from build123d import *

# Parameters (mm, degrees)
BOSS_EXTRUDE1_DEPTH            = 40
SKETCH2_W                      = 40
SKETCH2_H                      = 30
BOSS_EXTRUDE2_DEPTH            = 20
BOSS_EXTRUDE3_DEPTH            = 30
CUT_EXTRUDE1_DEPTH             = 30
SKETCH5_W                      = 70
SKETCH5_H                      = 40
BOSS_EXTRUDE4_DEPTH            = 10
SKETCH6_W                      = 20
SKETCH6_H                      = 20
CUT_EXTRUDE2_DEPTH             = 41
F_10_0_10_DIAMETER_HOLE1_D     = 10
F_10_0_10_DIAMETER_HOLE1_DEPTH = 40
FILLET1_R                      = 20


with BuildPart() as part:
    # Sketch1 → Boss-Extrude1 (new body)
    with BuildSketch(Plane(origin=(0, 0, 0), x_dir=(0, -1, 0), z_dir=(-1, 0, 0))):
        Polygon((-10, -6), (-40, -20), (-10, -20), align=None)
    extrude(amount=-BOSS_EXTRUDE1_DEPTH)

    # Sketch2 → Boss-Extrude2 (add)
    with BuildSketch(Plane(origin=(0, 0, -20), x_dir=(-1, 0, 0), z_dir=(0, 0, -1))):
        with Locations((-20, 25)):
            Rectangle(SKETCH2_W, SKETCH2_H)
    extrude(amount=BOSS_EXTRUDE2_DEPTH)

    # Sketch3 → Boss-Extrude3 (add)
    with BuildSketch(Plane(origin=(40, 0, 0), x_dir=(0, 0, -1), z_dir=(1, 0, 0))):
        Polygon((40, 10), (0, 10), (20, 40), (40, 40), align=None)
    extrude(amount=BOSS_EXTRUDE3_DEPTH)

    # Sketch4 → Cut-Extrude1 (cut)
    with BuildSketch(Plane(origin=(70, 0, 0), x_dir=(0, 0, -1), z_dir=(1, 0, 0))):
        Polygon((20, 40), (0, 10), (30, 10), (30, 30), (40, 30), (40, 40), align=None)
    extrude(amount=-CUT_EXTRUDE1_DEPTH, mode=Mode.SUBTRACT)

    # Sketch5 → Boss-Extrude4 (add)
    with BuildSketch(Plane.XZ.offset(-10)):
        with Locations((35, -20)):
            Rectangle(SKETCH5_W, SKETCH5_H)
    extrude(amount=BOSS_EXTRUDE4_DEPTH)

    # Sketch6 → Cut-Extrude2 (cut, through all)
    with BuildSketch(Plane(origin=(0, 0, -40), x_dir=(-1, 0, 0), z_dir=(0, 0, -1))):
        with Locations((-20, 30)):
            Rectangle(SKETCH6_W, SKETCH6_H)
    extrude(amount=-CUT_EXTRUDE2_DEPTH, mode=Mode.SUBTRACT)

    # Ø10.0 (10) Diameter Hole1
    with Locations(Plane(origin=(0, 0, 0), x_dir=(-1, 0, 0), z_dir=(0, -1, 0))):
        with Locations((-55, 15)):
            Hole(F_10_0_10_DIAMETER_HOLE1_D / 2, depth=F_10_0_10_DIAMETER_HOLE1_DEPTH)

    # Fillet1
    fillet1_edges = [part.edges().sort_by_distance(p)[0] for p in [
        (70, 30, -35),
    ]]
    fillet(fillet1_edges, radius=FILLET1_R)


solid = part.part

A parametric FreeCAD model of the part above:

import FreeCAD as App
import Part
import Sketcher
from FreeCAD import Vector
Q = App.Units.Quantity


def edges_at(feature, points):
    """Names of the edges that pass closest to the given points."""
    edges = feature.Shape.Edges
    near = lambda p: min(range(len(edges)), key=lambda i: edges[i].distToShape(Part.Vertex(*p))[0])
    return sorted({f"Edge{near(p) + 1}" for p in points})

doc = App.newDocument("Part")
body = doc.addObject("PartDesign::Body", "Body")

sketch1 = body.newObject("Sketcher::SketchObject", "Sketch")
sketch1.AttachmentSupport = (doc.getObject("YZ_Plane"), [""])
sketch1.MapMode = "FlatFace"
sketch1.addGeometry([
    Part.LineSegment(Vector(10, -6, 0), Vector(40, -20, 0)),
    Part.LineSegment(Vector(40, -20, 0), Vector(10, -20, 0)),
    Part.LineSegment(Vector(10, -20, 0), Vector(10, -6, 0)),
], False)
sketch1.addConstraint([
    Sketcher.Constraint("Coincident", 0, 2, 1, 1),
    Sketcher.Constraint("Coincident", 1, 2, 2, 1),
    Sketcher.Constraint("Coincident", 2, 2, 0, 1),
    Sketcher.Constraint("Horizontal", 1),
    Sketcher.Constraint("Vertical", 2),
    Sketcher.Constraint("DistanceX", 1, 2, 1, 1, Q("30 mm")),
    Sketcher.Constraint("DistanceY", 2, 1, 2, 2, Q("14 mm")),
    Sketcher.Constraint("DistanceX", -1, 1, 0, 2, Q("40 mm")),
    Sketcher.Constraint("DistanceY", 0, 2, -1, 1, Q("20 mm")),
])
pad1 = body.newObject("PartDesign::Pad", "Pad")
pad1.Profile = sketch1
pad1.Length = 40

sketch2 = body.newObject("Sketcher::SketchObject", "Sketch001")
sketch2.AttachmentSupport = (doc.getObject("XY_Plane"), [""])
sketch2.MapMode = "FlatFace"
sketch2.AttachmentOffset = App.Placement(Vector(0, 0, -20), App.Rotation())
sketch2.addGeometry([
    Part.LineSegment(Vector(40, 40, 0), Vector(40, 10, 0)),
    Part.LineSegment(Vector(40, 10, 0), Vector(0, 10, 0)),
    Part.LineSegment(Vector(0, 10, 0), Vector(0, 40, 0)),
    Part.LineSegment(Vector(0, 40, 0), Vector(40, 40, 0)),
], False)
sketch2.addConstraint([
    Sketcher.Constraint("Coincident", 0, 2, 1, 1),
    Sketcher.Constraint("Coincident", 1, 2, 2, 1),
    Sketcher.Constraint("Coincident", 2, 2, 3, 1),
    Sketcher.Constraint("Coincident", 3, 2, 0, 1),
    Sketcher.Constraint("Vertical", 0),
    Sketcher.Constraint("Horizontal", 1),
    Sketcher.Constraint("Vertical", 2),
    Sketcher.Constraint("Horizontal", 3),
    Sketcher.Constraint("PointOnObject", 1, 2, -2),
    Sketcher.Constraint("DistanceX", 1, 2, 1, 1, Q("40 mm")),
    Sketcher.Constraint("DistanceY", 0, 2, 0, 1, Q("30 mm")),
    Sketcher.Constraint("DistanceY", -1, 1, 0, 2, Q("10 mm")),
])
pad2 = body.newObject("PartDesign::Pad", "Pad001")
pad2.Profile = sketch2
pad2.Length = 20
pad2.Reversed = True

sketch3 = body.newObject("Sketcher::SketchObject", "Sketch002")
sketch3.AttachmentSupport = (doc.getObject("YZ_Plane"), [""])
sketch3.MapMode = "FlatFace"
sketch3.AttachmentOffset = App.Placement(Vector(0, 0, 40), App.Rotation())
sketch3.addGeometry([
    Part.LineSegment(Vector(10, 0, 0), Vector(10, -40, 0)),
    Part.LineSegment(Vector(10, -40, 0), Vector(40, -40, 0)),
    Part.LineSegment(Vector(40, -40, 0), Vector(40, -20, 0)),
    Part.LineSegment(Vector(40, -20, 0), Vector(10, 0, 0)),
], False)
sketch3.addConstraint([
    Sketcher.Constraint("Coincident", 0, 2, 1, 1),
    Sketcher.Constraint("Coincident", 1, 2, 2, 1),
    Sketcher.Constraint("Coincident", 2, 2, 3, 1),
    Sketcher.Constraint("Coincident", 3, 2, 0, 1),
    Sketcher.Constraint("Vertical", 0),
    Sketcher.Constraint("Horizontal", 1),
    Sketcher.Constraint("Vertical", 2),
    Sketcher.Constraint("PointOnObject", 3, 2, -1),
    Sketcher.Constraint("DistanceX", 1, 1, 1, 2, Q("30 mm")),
    Sketcher.Constraint("DistanceY", 0, 2, 0, 1, Q("40 mm")),
    Sketcher.Constraint("DistanceY", 2, 1, 2, 2, Q("20 mm")),
    Sketcher.Constraint("DistanceX", -1, 1, 0, 2, Q("10 mm")),
])
pad3 = body.newObject("PartDesign::Pad", "Pad002")
pad3.Profile = sketch3
pad3.Length = 30

sketch4 = body.newObject("Sketcher::SketchObject", "Sketch003")
sketch4.AttachmentSupport = (doc.getObject("YZ_Plane"), [""])
sketch4.MapMode = "FlatFace"
sketch4.AttachmentOffset = App.Placement(Vector(0, 0, 70), App.Rotation())
sketch4.addGeometry([
    Part.LineSegment(Vector(40, -20, 0), Vector(10, 0, 0)),
    Part.LineSegment(Vector(10, 0, 0), Vector(10, -30, 0)),
    Part.LineSegment(Vector(10, -30, 0), Vector(30, -30, 0)),
    Part.LineSegment(Vector(30, -30, 0), Vector(30, -40, 0)),
    Part.LineSegment(Vector(30, -40, 0), Vector(40, -40, 0)),
    Part.LineSegment(Vector(40, -40, 0), Vector(40, -20, 0)),
], False)
sketch4.addConstraint([
    Sketcher.Constraint("Coincident", 0, 2, 1, 1),
    Sketcher.Constraint("Coincident", 1, 2, 2, 1),
    Sketcher.Constraint("Coincident", 2, 2, 3, 1),
    Sketcher.Constraint("Coincident", 3, 2, 4, 1),
    Sketcher.Constraint("Coincident", 4, 2, 5, 1),
    Sketcher.Constraint("Coincident", 5, 2, 0, 1),
    Sketcher.Constraint("Vertical", 1),
    Sketcher.Constraint("Horizontal", 2),
    Sketcher.Constraint("Vertical", 3),
    Sketcher.Constraint("Horizontal", 4),
    Sketcher.Constraint("Vertical", 5),
    Sketcher.Constraint("PointOnObject", 0, 2, -1),
    Sketcher.Constraint("Equal", 4, 3),
    Sketcher.Constraint("Equal", 2, 5),
    Sketcher.Constraint("DistanceX", 2, 1, 2, 2, Q("20 mm")),
    Sketcher.Constraint("DistanceX", 4, 1, 4, 2, Q("10 mm")),
    Sketcher.Constraint("DistanceY", 1, 2, 1, 1, Q("30 mm")),
    Sketcher.Constraint("DistanceX", -1, 1, 0, 2, Q("10 mm")),
])
pocket1 = body.newObject("PartDesign::Pocket", "Pocket")
pocket1.Profile = sketch4
pocket1.Length = 30

sketch5 = body.newObject("Sketcher::SketchObject", "Sketch004")
sketch5.AttachmentSupport = (doc.getObject("XZ_Plane"), [""])
sketch5.MapMode = "FlatFace"
sketch5.AttachmentOffset = App.Placement(Vector(0, 0, -10), App.Rotation())
sketch5.addGeometry([
    Part.LineSegment(Vector(0, 0, 0), Vector(0, -40, 0)),
    Part.LineSegment(Vector(0, -40, 0), Vector(70, -40, 0)),
    Part.LineSegment(Vector(70, -40, 0), Vector(70, 0, 0)),
    Part.LineSegment(Vector(70, 0, 0), Vector(0, 0, 0)),
], False)
sketch5.addConstraint([
    Sketcher.Constraint("Coincident", 0, 2, 1, 1),
    Sketcher.Constraint("Coincident", 1, 2, 2, 1),
    Sketcher.Constraint("Coincident", 2, 2, 3, 1),
    Sketcher.Constraint("Coincident", 3, 2, 0, 1),
    Sketcher.Constraint("Vertical", 0),
    Sketcher.Constraint("Horizontal", 1),
    Sketcher.Constraint("Vertical", 2),
    Sketcher.Constraint("Horizontal", 3),
    Sketcher.Constraint("Coincident", 3, 2, -1, 1),
    Sketcher.Constraint("DistanceX", 1, 1, 1, 2, Q("70 mm")),
    Sketcher.Constraint("DistanceY", 0, 2, 0, 1, Q("40 mm")),
])
pad4 = body.newObject("PartDesign::Pad", "Pad003")
pad4.Profile = sketch5
pad4.Length = 10

sketch6 = body.newObject("Sketcher::SketchObject", "Sketch005")
sketch6.AttachmentSupport = (doc.getObject("XY_Plane"), [""])
sketch6.MapMode = "FlatFace"
sketch6.AttachmentOffset = App.Placement(Vector(0, 0, -40), App.Rotation())
sketch6.addGeometry([
    Part.LineSegment(Vector(30, 40, 0), Vector(30, 20, 0)),
    Part.LineSegment(Vector(30, 20, 0), Vector(10, 20, 0)),
    Part.LineSegment(Vector(10, 20, 0), Vector(10, 40, 0)),
    Part.LineSegment(Vector(10, 40, 0), Vector(30, 40, 0)),
], False)
sketch6.addConstraint([
    Sketcher.Constraint("Coincident", 0, 2, 1, 1),
    Sketcher.Constraint("Coincident", 1, 2, 2, 1),
    Sketcher.Constraint("Coincident", 2, 2, 3, 1),
    Sketcher.Constraint("Coincident", 3, 2, 0, 1),
    Sketcher.Constraint("Vertical", 0),
    Sketcher.Constraint("Horizontal", 1),
    Sketcher.Constraint("Vertical", 2),
    Sketcher.Constraint("Horizontal", 3),
    Sketcher.Constraint("Equal", 3, 0),
    Sketcher.Constraint("DistanceX", 1, 2, 1, 1, Q("20 mm")),
    Sketcher.Constraint("DistanceX", -1, 1, 0, 2, Q("30 mm")),
    Sketcher.Constraint("DistanceY", -1, 1, 0, 2, Q("20 mm")),
])
pocket2 = body.newObject("PartDesign::Pocket", "Pocket001")
pocket2.Profile = sketch6
pocket2.Type = "ThroughAll"
pocket2.Reversed = True

sketch7 = body.newObject("Sketcher::SketchObject", "Sketch006")
sketch7.AttachmentSupport = (doc.getObject("XZ_Plane"), [""])
sketch7.MapMode = "FlatFace"
sketch7.addGeometry(Part.Circle(Vector(55, -15, 0), Vector(0, 0, 1), 5), False)
sketch7.addConstraint([
    Sketcher.Constraint("Diameter", 0, Q("10 mm")),
    Sketcher.Constraint("DistanceX", -1, 1, 0, 3, Q("55 mm")),
    Sketcher.Constraint("DistanceY", 0, 3, -1, 1, Q("15 mm")),
])
doc.recompute()
hole = body.newObject("PartDesign::Hole", "Hole")
hole.Profile = sketch7
hole.ThreadType = "None"
hole.Diameter = 10
hole.DepthType = "Dimension"
hole.Depth = 40
hole.DrillPoint = "Flat"
doc.recompute()

fillet = body.newObject("PartDesign::Fillet", "Fillet")
fillet.Base = (hole, edges_at(hole, [(70, 30, -35)]))
fillet.Radius = 20

doc.recompute()
